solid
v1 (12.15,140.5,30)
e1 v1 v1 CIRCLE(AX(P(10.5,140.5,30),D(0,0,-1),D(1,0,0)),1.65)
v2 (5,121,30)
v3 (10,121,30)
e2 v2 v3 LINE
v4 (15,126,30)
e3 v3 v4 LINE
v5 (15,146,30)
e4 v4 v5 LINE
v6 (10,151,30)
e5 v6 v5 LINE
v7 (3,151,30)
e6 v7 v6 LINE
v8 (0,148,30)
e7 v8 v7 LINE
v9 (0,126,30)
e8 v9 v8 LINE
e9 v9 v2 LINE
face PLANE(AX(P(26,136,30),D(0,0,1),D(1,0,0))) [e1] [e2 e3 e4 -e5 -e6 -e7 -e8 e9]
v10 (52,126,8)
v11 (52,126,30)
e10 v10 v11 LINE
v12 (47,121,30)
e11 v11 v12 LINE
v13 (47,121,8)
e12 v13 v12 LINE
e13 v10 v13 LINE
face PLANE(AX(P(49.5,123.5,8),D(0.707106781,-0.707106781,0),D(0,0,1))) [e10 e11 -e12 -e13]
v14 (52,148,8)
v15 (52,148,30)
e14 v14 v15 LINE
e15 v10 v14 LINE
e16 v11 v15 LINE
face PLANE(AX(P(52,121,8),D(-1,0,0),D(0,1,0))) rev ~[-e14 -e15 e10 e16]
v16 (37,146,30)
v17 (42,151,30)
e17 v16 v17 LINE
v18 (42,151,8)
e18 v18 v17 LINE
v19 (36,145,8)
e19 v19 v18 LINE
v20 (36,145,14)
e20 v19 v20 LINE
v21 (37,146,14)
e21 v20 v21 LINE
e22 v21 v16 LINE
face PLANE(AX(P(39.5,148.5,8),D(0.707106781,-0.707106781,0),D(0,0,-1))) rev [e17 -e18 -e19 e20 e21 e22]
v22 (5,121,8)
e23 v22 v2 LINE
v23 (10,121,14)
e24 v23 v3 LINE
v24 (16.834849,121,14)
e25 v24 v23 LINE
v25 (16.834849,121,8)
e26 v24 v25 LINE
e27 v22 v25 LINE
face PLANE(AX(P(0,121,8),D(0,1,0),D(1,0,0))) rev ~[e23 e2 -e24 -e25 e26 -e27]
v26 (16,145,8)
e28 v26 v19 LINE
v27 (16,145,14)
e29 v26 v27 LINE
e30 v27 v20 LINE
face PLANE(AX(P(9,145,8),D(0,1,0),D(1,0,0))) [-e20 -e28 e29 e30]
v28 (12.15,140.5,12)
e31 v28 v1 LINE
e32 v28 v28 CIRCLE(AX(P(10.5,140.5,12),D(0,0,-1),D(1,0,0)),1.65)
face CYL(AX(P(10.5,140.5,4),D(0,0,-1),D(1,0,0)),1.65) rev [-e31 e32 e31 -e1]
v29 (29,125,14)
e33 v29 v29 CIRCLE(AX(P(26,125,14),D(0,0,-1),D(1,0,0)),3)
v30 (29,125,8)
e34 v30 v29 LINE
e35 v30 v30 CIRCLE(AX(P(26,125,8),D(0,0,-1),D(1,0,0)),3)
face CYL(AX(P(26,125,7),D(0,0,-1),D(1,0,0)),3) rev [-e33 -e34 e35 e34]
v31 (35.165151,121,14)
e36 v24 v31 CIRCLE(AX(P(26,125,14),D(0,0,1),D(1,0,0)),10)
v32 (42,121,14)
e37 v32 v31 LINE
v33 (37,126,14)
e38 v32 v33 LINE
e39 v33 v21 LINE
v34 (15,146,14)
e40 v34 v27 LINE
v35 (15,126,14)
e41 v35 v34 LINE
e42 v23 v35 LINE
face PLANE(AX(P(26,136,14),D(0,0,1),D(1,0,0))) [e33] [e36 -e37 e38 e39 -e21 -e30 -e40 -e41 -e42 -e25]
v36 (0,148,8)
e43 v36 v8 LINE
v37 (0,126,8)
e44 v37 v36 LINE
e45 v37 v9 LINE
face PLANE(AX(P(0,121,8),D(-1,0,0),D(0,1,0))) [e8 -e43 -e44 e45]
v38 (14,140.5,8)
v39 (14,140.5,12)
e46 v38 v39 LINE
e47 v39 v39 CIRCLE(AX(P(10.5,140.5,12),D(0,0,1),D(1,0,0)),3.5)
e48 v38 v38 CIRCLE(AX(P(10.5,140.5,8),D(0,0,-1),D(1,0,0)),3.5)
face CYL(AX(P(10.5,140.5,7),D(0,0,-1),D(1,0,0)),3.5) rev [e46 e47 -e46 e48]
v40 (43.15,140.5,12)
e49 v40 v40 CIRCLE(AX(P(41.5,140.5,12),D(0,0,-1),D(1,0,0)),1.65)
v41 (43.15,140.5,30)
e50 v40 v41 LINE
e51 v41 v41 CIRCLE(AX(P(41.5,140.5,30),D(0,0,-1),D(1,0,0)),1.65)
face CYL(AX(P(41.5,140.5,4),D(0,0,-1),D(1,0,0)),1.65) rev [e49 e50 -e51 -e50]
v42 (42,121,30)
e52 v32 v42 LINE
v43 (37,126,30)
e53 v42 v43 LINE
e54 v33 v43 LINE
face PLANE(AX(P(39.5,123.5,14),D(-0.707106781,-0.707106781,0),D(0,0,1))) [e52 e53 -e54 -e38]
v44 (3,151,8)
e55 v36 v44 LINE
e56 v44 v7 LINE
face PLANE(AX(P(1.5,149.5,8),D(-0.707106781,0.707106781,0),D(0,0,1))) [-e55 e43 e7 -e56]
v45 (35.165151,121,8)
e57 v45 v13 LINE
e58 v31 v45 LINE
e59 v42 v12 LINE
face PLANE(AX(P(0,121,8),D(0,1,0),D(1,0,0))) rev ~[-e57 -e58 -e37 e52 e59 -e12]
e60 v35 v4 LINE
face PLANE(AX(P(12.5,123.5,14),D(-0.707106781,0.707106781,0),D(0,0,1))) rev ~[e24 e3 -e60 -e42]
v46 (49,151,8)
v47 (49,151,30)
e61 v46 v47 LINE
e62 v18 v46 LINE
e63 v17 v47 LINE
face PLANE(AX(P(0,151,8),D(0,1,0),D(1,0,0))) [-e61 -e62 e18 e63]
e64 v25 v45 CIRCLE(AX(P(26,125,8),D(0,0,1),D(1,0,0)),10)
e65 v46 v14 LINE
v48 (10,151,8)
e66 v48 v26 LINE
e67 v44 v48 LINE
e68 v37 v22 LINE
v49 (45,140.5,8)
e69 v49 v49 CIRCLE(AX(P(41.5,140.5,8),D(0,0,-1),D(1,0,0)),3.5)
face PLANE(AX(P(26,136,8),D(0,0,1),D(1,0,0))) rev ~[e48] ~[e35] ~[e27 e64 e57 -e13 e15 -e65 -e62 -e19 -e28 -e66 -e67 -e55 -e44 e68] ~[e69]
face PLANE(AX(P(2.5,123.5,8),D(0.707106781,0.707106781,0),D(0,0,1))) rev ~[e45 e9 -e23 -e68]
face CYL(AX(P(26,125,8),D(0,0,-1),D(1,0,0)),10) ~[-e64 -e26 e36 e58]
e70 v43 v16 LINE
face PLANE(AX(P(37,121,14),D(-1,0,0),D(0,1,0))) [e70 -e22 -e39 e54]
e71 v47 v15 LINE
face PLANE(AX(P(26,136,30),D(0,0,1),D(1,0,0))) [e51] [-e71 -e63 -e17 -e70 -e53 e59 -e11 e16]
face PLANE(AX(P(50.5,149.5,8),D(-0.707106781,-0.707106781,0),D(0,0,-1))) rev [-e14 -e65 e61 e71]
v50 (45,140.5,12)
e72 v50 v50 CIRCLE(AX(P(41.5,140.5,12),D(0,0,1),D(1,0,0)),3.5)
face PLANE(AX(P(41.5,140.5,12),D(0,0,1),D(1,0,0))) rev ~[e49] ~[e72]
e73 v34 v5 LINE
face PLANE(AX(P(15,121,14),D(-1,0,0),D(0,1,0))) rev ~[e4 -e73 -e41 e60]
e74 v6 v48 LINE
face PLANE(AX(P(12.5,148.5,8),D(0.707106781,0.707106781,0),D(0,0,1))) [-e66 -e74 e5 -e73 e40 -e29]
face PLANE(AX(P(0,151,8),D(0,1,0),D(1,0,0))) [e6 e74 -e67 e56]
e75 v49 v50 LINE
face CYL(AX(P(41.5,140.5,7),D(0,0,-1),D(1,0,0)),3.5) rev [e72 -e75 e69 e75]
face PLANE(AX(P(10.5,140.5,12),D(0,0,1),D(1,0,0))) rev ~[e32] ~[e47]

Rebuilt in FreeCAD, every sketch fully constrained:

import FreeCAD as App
import Part
import Sketcher
Q = App.Units.Quantity


def edges_at(feature, points):
    """Names of the edges that pass closest to the given points."""
    edges = feature.Shape.Edges
    near = lambda p: min(range(len(edges)), key=lambda i: edges[i].distToShape(Part.Vertex(*p))[0])
    return sorted({f"Edge{near(p) + 1}" for p in points})

doc = App.newDocument("Part")
body = doc.addObject("PartDesign::Body", "Body")

sketch1 = doc.addObject("Sketcher::SketchObject", "Sketch")
body.addObject(sketch1)
sketch1.AttachmentSupport = (doc.XY_Plane, [""])
sketch1.MapMode = "FlatFace"
sketch1.AttachmentOffset = App.Placement(App.Vector(0, 0, 7), App.Rotation())
sketch1.addGeometry(Part.Circle(App.Vector(26, 125, 0), App.Vector(0, 0, 1), 3), False)
sketch1.addConstraint(Sketcher.Constraint("Diameter", 0, Q("6 mm")))
sketch1.addConstraint(Sketcher.Constraint("DistanceX", -1, 1, 0, 3, Q("26 mm")))
sketch1.addConstraint(Sketcher.Constraint("DistanceY", -1, 1, 0, 3, Q("125 mm")))
pad1 = doc.addObject("PartDesign::Pad", "Pad")
body.addObject(pad1)
pad1.Profile = sketch1
pad1.Length = 10
body2 = doc.addObject("PartDesign::Body", "Body001")

sketch2 = doc.addObject("Sketcher::SketchObject", "Sketch001")
body2.addObject(sketch2)
sketch2.AttachmentSupport = (doc.getObject("XY_Plane001"), [""])
sketch2.MapMode = "FlatFace"
sketch2.AttachmentOffset = App.Placement(App.Vector(0, 0, 14), App.Rotation())
sketch2.addGeometry(Part.LineSegment(App.Vector(15, 151, 0), App.Vector(15, 121, 0)), False)
sketch2.addGeometry(Part.LineSegment(App.Vector(15, 121, 0), App.Vector(37, 121, 0)), False)
sketch2.addGeometry(Part.LineSegment(App.Vector(37, 121, 0), App.Vector(37, 151, 0)), False)
sketch2.addGeometry(Part.LineSegment(App.Vector(37, 151, 0), App.Vector(15, 151, 0)), False)
sketch2.addConstraint(Sketcher.Constraint("Coincident", 0, 2, 1, 1))
sketch2.addConstraint(Sketcher.Constraint("Coincident", 1, 2, 2, 1))
sketch2.addConstraint(Sketcher.Constraint("Coincident", 2, 2, 3, 1))
sketch2.addConstraint(Sketcher.Constraint("Coincident", 3, 2, 0, 1))
sketch2.addConstraint(Sketcher.Constraint("Vertical", 0))
sketch2.addConstraint(Sketcher.Constraint("Horizontal", 1))
sketch2.addConstraint(Sketcher.Constraint("Vertical", 2))
sketch2.addConstraint(Sketcher.Constraint("Horizontal", 3))
sketch2.addConstraint(Sketcher.Constraint("DistanceX", 1, 1, 1, 2, Q("22 mm")))
sketch2.addConstraint(Sketcher.Constraint("DistanceY", 0, 2, 0, 1, Q("30 mm")))
sketch2.addConstraint(Sketcher.Constraint("DistanceX", -1, 1, 0, 2, Q("15 mm")))
sketch2.addConstraint(Sketcher.Constraint("DistanceY", -1, 1, 0, 2, Q("121 mm")))
pad2 = doc.addObject("PartDesign::Pad", "Pad001")
body2.addObject(pad2)
pad2.Profile = sketch2
pad2.Length = 16
body3 = doc.addObject("PartDesign::Body", "Body002")

sketch3 = doc.addObject("Sketcher::SketchObject", "Sketch002")
body3.addObject(sketch3)
sketch3.AttachmentSupport = (doc.getObject("XY_Plane002"), [""])
sketch3.MapMode = "FlatFace"
sketch3.AttachmentOffset = App.Placement(App.Vector(0, 0, 8), App.Rotation())
sketch3.addGeometry(Part.LineSegment(App.Vector(9, 155, 0), App.Vector(9, 145, 0)), False)
sketch3.addGeometry(Part.LineSegment(App.Vector(9, 145, 0), App.Vector(43, 145, 0)), False)
sketch3.addGeometry(Part.LineSegment(App.Vector(43, 145, 0), App.Vector(43, 155, 0)), False)
sketch3.addGeometry(Part.LineSegment(App.Vector(43, 155, 0), App.Vector(9, 155, 0)), False)
sketch3.addConstraint(Sketcher.Constraint("Coincident", 0, 2, 1, 1))
sketch3.addConstraint(Sketcher.Constraint("Coincident", 1, 2, 2, 1))
sketch3.addConstraint(Sketcher.Constraint("Coincident", 2, 2, 3, 1))
sketch3.addConstraint(Sketcher.Constraint("Coincident", 3, 2, 0, 1))
sketch3.addConstraint(Sketcher.Constraint("Vertical", 0))
sketch3.addConstraint(Sketcher.Constraint("Horizontal", 1))
sketch3.addConstraint(Sketcher.Constraint("Vertical", 2))
sketch3.addConstraint(Sketcher.Constraint("Horizontal", 3))
sketch3.addConstraint(Sketcher.Constraint("DistanceX", 1, 1, 1, 2, Q("34 mm")))
sketch3.addConstraint(Sketcher.Constraint("DistanceY", 0, 2, 0, 1, Q("10 mm")))
sketch3.addConstraint(Sketcher.Constraint("DistanceX", -1, 1, 0, 2, Q("9 mm")))
sketch3.addConstraint(Sketcher.Constraint("DistanceY", -1, 1, 0, 2, Q("145 mm")))
pad3 = doc.addObject("PartDesign::Pad", "Pad002")
body3.addObject(pad3)
pad3.Profile = sketch3
pad3.Length = 22
doc.recompute()

chamfer = doc.addObject("PartDesign::Chamfer", "Chamfer")
body3.addObject(chamfer)
chamfer.Base = (pad3, edges_at(pad3, [(9, 145, 19), (43, 145, 19)]))
chamfer.Size = 7
body4 = doc.addObject("PartDesign::Body", "Body003")

sketch4 = doc.addObject("Sketcher::SketchObject", "Sketch003")
body4.addObject(sketch4)
sketch4.AttachmentSupport = (doc.getObject("XY_Plane003"), [""])
sketch4.MapMode = "FlatFace"
sketch4.AttachmentOffset = App.Placement(App.Vector(0, 0, 4), App.Rotation())
sketch4.addGeometry(Part.Circle(App.Vector(10.5, 140.5, 0), App.Vector(0, 0, 1), 3.5), False)
sketch4.addConstraint(Sketcher.Constraint("Diameter", 0, Q("7 mm")))
sketch4.addConstraint(Sketcher.Constraint("DistanceX", -1, 1, 0, 3, Q("10.5 mm")))
sketch4.addConstraint(Sketcher.Constraint("DistanceY", -1, 1, 0, 3, Q("140.5 mm")))
pad4 = doc.addObject("PartDesign::Pad", "Pad003")
body4.addObject(pad4)
pad4.Profile = sketch4
pad4.Length = 5
body5 = doc.addObject("PartDesign::Body", "Body004")
body5.AllowCompound = True

sketch5 = doc.addObject("Sketcher::SketchObject", "Sketch004")
body5.addObject(sketch5)
sketch5.AttachmentSupport = (doc.getObject("XY_Plane004"), [""])
sketch5.MapMode = "FlatFace"
sketch5.AttachmentOffset = App.Placement(App.Vector(0, 0, 4), App.Rotation())
sketch5.addGeometry(Part.Circle(App.Vector(41.5, 140.5, 0), App.Vector(0, 0, 1), 3.5), False)
sketch5.addConstraint(Sketcher.Constraint("Diameter", 0, Q("7 mm")))
sketch5.addConstraint(Sketcher.Constraint("DistanceX", -1, 1, 0, 3, Q("41.5 mm")))
sketch5.addConstraint(Sketcher.Constraint("DistanceY", -1, 1, 0, 3, Q("140.5 mm")))
pad5 = doc.addObject("PartDesign::Pad", "Pad004")
body5.addObject(pad5)
pad5.Profile = sketch5
pad5.Length = 5
doc.recompute()

boolean = doc.addObject("PartDesign::Boolean", "Boolean")
body5.addObject(boolean)
boolean.Type = "Fuse"
boolean.addObjects([body4])
body6 = doc.addObject("PartDesign::Body", "Body005")
body6.AllowCompound = True
doc.recompute()

body5.Placement = App.Placement(App.Vector(0, 0, 3), App.Rotation(App.Vector(0, 0, 1), 0))
boolean2 = doc.addObject("PartDesign::Boolean", "Boolean001")
body6.addObject(boolean2)
boolean2.Type = "Fuse"
boolean2.addObjects([body5])
body7 = doc.addObject("PartDesign::Body", "Body006")

sketch6 = doc.addObject("Sketcher::SketchObject", "Sketch005")
body7.addObject(sketch6)
sketch6.AttachmentSupport = (doc.getObject("XY_Plane006"), [""])
sketch6.MapMode = "FlatFace"
sketch6.AttachmentOffset = App.Placement(App.Vector(0, 0, 4), App.Rotation())
sketch6.addGeometry(Part.Circle(App.Vector(41.5, 140.5, 0), App.Vector(0, 0, 1), 1.6), False)
sketch6.addConstraint(Sketcher.Constraint("Diameter", 0, Q("3.3 mm")))
sketch6.addConstraint(Sketcher.Constraint("DistanceX", -1, 1, 0, 3, Q("41.5 mm")))
sketch6.addConstraint(Sketcher.Constraint("DistanceY", -1, 1, 0, 3, Q("140.5 mm")))
pad6 = doc.addObject("PartDesign::Pad", "Pad005")
body7.addObject(pad6)
pad6.Profile = sketch6
pad6.Length = 47
body8 = doc.addObject("PartDesign::Body", "Body007")
body8.AllowCompound = True

sketch7 = doc.addObject("Sketcher::SketchObject", "Sketch006")
body8.addObject(sketch7)
sketch7.AttachmentSupport = (doc.getObject("XY_Plane007"), [""])
sketch7.MapMode = "FlatFace"
sketch7.AttachmentOffset = App.Placement(App.Vector(0, 0, 4), App.Rotation())
sketch7.addGeometry(Part.Circle(App.Vector(10.5, 140.5, 0), App.Vector(0, 0, 1), 1.6), False)
sketch7.addConstraint(Sketcher.Constraint("Diameter", 0, Q("3.3 mm")))
sketch7.addConstraint(Sketcher.Constraint("DistanceX", -1, 1, 0, 3, Q("10.5 mm")))
sketch7.addConstraint(Sketcher.Constraint("DistanceY", -1, 1, 0, 3, Q("140.5 mm")))
pad7 = doc.addObject("PartDesign::Pad", "Pad006")
body8.addObject(pad7)
pad7.Profile = sketch7
pad7.Length = 47
doc.recompute()

boolean3 = doc.addObject("PartDesign::Boolean", "Boolean002")
body8.addObject(boolean3)
boolean3.Type = "Fuse"
boolean3.addObjects([body7])
doc.recompute()

boolean4 = doc.addObject("PartDesign::Boolean", "Boolean003")
body8.addObject(boolean4)
boolean4.Type = "Fuse"
boolean4.addObjects([body6])
body9 = doc.addObject("PartDesign::Body", "Body008")

sketch8 = doc.addObject("Sketcher::SketchObject", "Sketch007")
body9.addObject(sketch8)
sketch8.AttachmentSupport = (doc.getObject("XY_Plane008"), [""])
sketch8.MapMode = "FlatFace"
sketch8.AttachmentOffset = App.Placement(App.Vector(0, 0, 14), App.Rotation())
sketch8.addGeometry(Part.LineSegment(App.Vector(10, 126, 0), App.Vector(10, 96, 0)), False)
sketch8.addGeometry(Part.LineSegment(App.Vector(10, 96, 0), App.Vector(42, 96, 0)), False)
sketch8.addGeometry(Part.LineSegment(App.Vector(42, 96, 0), App.Vector(42, 126, 0)), False)
sketch8.addGeometry(Part.LineSegment(App.Vector(42, 126, 0), App.Vector(10, 126, 0)), False)
sketch8.addConstraint(Sketcher.Constraint("Coincident", 0, 2, 1, 1))
sketch8.addConstraint(Sketcher.Constraint("Coincident", 1, 2, 2, 1))
sketch8.addConstraint(Sketcher.Constraint("Coincident", 2, 2, 3, 1))
sketch8.addConstraint(Sketcher.Constraint("Coincident", 3, 2, 0, 1))
sketch8.addConstraint(Sketcher.Constraint("Vertical", 0))
sketch8.addConstraint(Sketcher.Constraint("Horizontal", 1))
sketch8.addConstraint(Sketcher.Constraint("Vertical", 2))
sketch8.addConstraint(Sketcher.Constraint("Horizontal", 3))
sketch8.addConstraint(Sketcher.Constraint("DistanceX", 1, 1, 1, 2, Q("32 mm")))
sketch8.addConstraint(Sketcher.Constraint("DistanceY", 0, 2, 0, 1, Q("30 mm")))
sketch8.addConstraint(Sketcher.Constraint("DistanceX", -1, 1, 0, 2, Q("10 mm")))
sketch8.addConstraint(Sketcher.Constraint("DistanceY", -1, 1, 0, 2, Q("96 mm")))
pad8 = doc.addObject("PartDesign::Pad", "Pad007")
body9.addObject(pad8)
pad8.Profile = sketch8
pad8.Length = 16
doc.recompute()

chamfer2 = doc.addObject("PartDesign::Chamfer", "Chamfer001")
body9.addObject(chamfer2)
chamfer2.Base = (pad8, edges_at(pad8, [(10, 126, 22), (42, 126, 22)]))
chamfer2.Size = 5
body10 = doc.addObject("PartDesign::Body", "Body009")

sketch9 = doc.addObject("Sketcher::SketchObject", "Sketch008")
body10.addObject(sketch9)
sketch9.AttachmentSupport = (doc.getObject("XY_Plane009"), [""])
sketch9.MapMode = "FlatFace"
sketch9.AttachmentOffset = App.Placement(App.Vector(0, 0, 8), App.Rotation())
sketch9.addGeometry(Part.Circle(App.Vector(26, 125, 0), App.Vector(0, 0, 1), 10), False)
sketch9.addConstraint(Sketcher.Constraint("Diameter", 0, Q("20 mm")))
sketch9.addConstraint(Sketcher.Constraint("DistanceX", -1, 1, 0, 3, Q("26 mm")))
sketch9.addConstraint(Sketcher.Constraint("DistanceY", -1, 1, 0, 3, Q("125 mm")))
pad9 = doc.addObject("PartDesign::Pad", "Pad008")
body10.addObject(pad9)
pad9.Profile = sketch9
pad9.Length = 6
body11 = doc.addObject("PartDesign::Body", "Body010")

sketch10 = doc.addObject("Sketcher::SketchObject", "Sketch009")
body11.addObject(sketch10)
sketch10.AttachmentSupport = (doc.getObject("XY_Plane010"), [""])
sketch10.MapMode = "FlatFace"
sketch10.AttachmentOffset = App.Placement(App.Vector(0, 0, 8), App.Rotation())
sketch10.addGeometry(Part.LineSegment(App.Vector(0, 151, 0), App.Vector(0, 121, 0)), False)
sketch10.addGeometry(Part.LineSegment(App.Vector(0, 121, 0), App.Vector(52, 121, 0)), False)
sketch10.addGeometry(Part.LineSegment(App.Vector(52, 121, 0), App.Vector(52, 151, 0)), False)
sketch10.addGeometry(Part.LineSegment(App.Vector(52, 151, 0), App.Vector(0, 151, 0)), False)
sketch10.addConstraint(Sketcher.Constraint("Coincident", 0, 2, 1, 1))
sketch10.addConstraint(Sketcher.Constraint("Coincident", 1, 2, 2, 1))
sketch10.addConstraint(Sketcher.Constraint("Coincident", 2, 2, 3, 1))
sketch10.addConstraint(Sketcher.Constraint("Coincident", 3, 2, 0, 1))
sketch10.addConstraint(Sketcher.Constraint("Vertical", 0))
sketch10.addConstraint(Sketcher.Constraint("Horizontal", 1))
sketch10.addConstraint(Sketcher.Constraint("Vertical", 2))
sketch10.addConstraint(Sketcher.Constraint("Horizontal", 3))
sketch10.addConstraint(Sketcher.Constraint("PointOnObject", 0, 2, -2))
sketch10.addConstraint(Sketcher.Constraint("DistanceX", 1, 1, 1, 2, Q("52 mm")))
sketch10.addConstraint(Sketcher.Constraint("DistanceY", 0, 2, 0, 1, Q("30 mm")))
sketch10.addConstraint(Sketcher.Constraint("DistanceY", -1, 1, 0, 2, Q("121 mm")))
pad10 = doc.addObject("PartDesign::Pad", "Pad009")
body11.addObject(pad10)
pad10.Profile = sketch10
pad10.Length = 22
doc.recompute()

boolean5 = doc.addObject("PartDesign::Boolean", "Boolean004")
body11.addObject(boolean5)
boolean5.Type = "Fuse"
boolean5.addObjects([body10])
doc.recompute()

chamfer3 = doc.addObject("PartDesign::Chamfer", "Chamfer002")
body11.addObject(chamfer3)
chamfer3.Base = (boolean5, edges_at(boolean5, [(0, 121, 19), (52, 121, 19)]))
chamfer3.Size = 5
doc.recompute()

chamfer4 = doc.addObject("PartDesign::Chamfer", "Chamfer003")
body11.addObject(chamfer4)
chamfer4.Base = (chamfer3, edges_at(chamfer3, [(0, 151, 19), (52, 151, 19)]))
chamfer4.Size = 3
doc.recompute()

boolean6 = doc.addObject("PartDesign::Boolean", "Boolean005")
body11.addObject(boolean6)
boolean6.Type = "Cut"
boolean6.addObjects([body9])
doc.recompute()

boolean7 = doc.addObject("PartDesign::Boolean", "Boolean006")
body11.addObject(boolean7)
boolean7.Type = "Cut"
boolean7.addObjects([body8])
doc.recompute()

boolean8 = doc.addObject("PartDesign::Boolean", "Boolean007")
body11.addObject(boolean8)
boolean8.Type = "Cut"
boolean8.addObjects([body3])
doc.recompute()

boolean9 = doc.addObject("PartDesign::Boolean", "Boolean008")
body11.addObject(boolean9)
boolean9.Type = "Cut"
boolean9.addObjects([body2])
doc.recompute()

boolean10 = doc.addObject("PartDesign::Boolean", "Boolean009")
body11.addObject(boolean10)
boolean10.Type = "Cut"
boolean10.addObjects([body])

doc.recompute()
